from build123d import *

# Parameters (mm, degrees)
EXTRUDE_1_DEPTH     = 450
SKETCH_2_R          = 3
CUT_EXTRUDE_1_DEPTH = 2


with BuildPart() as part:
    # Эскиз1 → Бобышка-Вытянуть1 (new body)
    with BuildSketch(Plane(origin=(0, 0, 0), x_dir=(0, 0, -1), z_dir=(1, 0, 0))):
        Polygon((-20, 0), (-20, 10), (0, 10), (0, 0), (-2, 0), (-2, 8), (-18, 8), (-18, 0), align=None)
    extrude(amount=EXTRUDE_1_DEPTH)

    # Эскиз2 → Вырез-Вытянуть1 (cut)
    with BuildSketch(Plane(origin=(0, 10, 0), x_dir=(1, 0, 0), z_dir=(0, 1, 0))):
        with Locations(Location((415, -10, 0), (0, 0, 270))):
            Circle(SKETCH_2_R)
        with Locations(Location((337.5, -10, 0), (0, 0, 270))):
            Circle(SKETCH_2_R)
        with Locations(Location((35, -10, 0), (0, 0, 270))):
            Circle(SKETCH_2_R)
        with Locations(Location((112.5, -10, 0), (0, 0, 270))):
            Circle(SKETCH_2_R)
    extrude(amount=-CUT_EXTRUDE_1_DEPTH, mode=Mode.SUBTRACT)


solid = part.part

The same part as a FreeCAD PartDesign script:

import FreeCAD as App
import Part
import Sketcher


def add_polygon(sketch, points):
    """Adds a closed chain of lines whose ends are joined by coincident constraints."""
    first, n = sketch.GeometryCount, len(points)
    for a, b in zip(points, points[1:] + points[:1]):
        sketch.addGeometry(Part.LineSegment(App.Vector(*a, 0), App.Vector(*b, 0)), False)
    for i in range(n):
        sketch.addConstraint(Sketcher.Constraint("Coincident", first + i, 2, first + (i + 1) % n, 1))

doc = App.newDocument("Part")
body = doc.addObject("PartDesign::Body", "Body")

# Sketch on YZ plane
sketch1 = doc.addObject("Sketcher::SketchObject", "Sketch")
body.addObject(sketch1)
sketch1.AttachmentSupport = (doc.YZ_Plane, [""])
sketch1.MapMode = "FlatFace"
add_polygon(sketch1, [(10, 20), (0, 20), (0, 18), (8, 18), (8, 2), (0, 2), (0, 0), (10, 0)])  # lines 0-7
sketch1.addConstraint(Sketcher.Constraint("Horizontal", 0))
sketch1.addConstraint(Sketcher.Constraint("Vertical", 1))
sketch1.addConstraint(Sketcher.Constraint("Horizontal", 2))
sketch1.addConstraint(Sketcher.Constraint("Vertical", 3))
sketch1.addConstraint(Sketcher.Constraint("Horizontal", 4))
sketch1.addConstraint(Sketcher.Constraint("Vertical", 5))
sketch1.addConstraint(Sketcher.Constraint("Horizontal", 6))
sketch1.addConstraint(Sketcher.Constraint("Vertical", 7))
sketch1.addConstraint(Sketcher.Constraint("Coincident", 5, 2, -1, 1))
sketch1.addConstraint(Sketcher.Constraint("PointOnObject", 0, 2, -2))
sketch1.addConstraint(Sketcher.Constraint("Equal", 1, 5))
sketch1.addConstraint(Sketcher.Constraint("DistanceX", 0, 2, 0, 1, 10.0))
sketch1.addConstraint(Sketcher.Constraint("DistanceX", 2, 1, 2, 2, 8.0))
sketch1.addConstraint(Sketcher.Constraint("DistanceY", 1, 2, 1, 1, 2.0))
sketch1.addConstraint(Sketcher.Constraint("DistanceY", 3, 2, 3, 1, 16.0))
pad1 = doc.addObject("PartDesign::Pad", "Pad")
body.addObject(pad1)
pad1.Profile = sketch1
pad1.Length = 450

# Sketch on XZ plane
sketch2 = doc.addObject("Sketcher::SketchObject", "Sketch001")
body.addObject(sketch2)
sketch2.AttachmentSupport = (doc.XZ_Plane, [""])
sketch2.MapMode = "FlatFace"
sketch2.AttachmentOffset = App.Placement(App.Vector(0, 0, -10), App.Rotation())
sketch2.addGeometry(Part.Circle(App.Vector(415, 10, 0), App.Vector(0, 0, 1), 3), False)
sketch2.addGeometry(Part.Circle(App.Vector(337.5, 10, 0), App.Vector(0, 0, 1), 3), False)
sketch2.addGeometry(Part.Circle(App.Vector(35, 10, 0), App.Vector(0, 0, 1), 3), False)
sketch2.addGeometry(Part.Circle(App.Vector(112.5, 10, 0), App.Vector(0, 0, 1), 3), False)
sketch2.addConstraint(Sketcher.Constraint("Equal", 0, 1))
sketch2.addConstraint(Sketcher.Constraint("Equal", 1, 2))
sketch2.addConstraint(Sketcher.Constraint("Equal", 2, 3))
sketch2.addConstraint(Sketcher.Constraint("Horizontal", 0, 3, 1, 3))
sketch2.addConstraint(Sketcher.Constraint("Horizontal", 1, 3, 2, 3))
sketch2.addConstraint(Sketcher.Constraint("Horizontal", 2, 3, 3, 3))
sketch2.addConstraint(Sketcher.Constraint("Diameter", 0, 6.0))
sketch2.addConstraint(Sketcher.Constraint("DistanceX", -1, 1, 0, 3, 415.0))
sketch2.addConstraint(Sketcher.Constraint("DistanceY", -1, 1, 0, 3, 10.0))
sketch2.addConstraint(Sketcher.Constraint("DistanceX", -1, 1, 2, 3, 35.0))
sketch2.addConstraint(Sketcher.Constraint("DistanceX", 3, 3, 1, 3, 225.0))
sketch2.addConstraint(Sketcher.Constraint("DistanceX", -1, 1, 1, 3, 337.5))
pocket1 = doc.addObject("PartDesign::Pocket", "Pocket")
body.addObject(pocket1)
pocket1.Profile = sketch2
pocket1.Length = 2
pocket1.Reversed = True

doc.recompute()
